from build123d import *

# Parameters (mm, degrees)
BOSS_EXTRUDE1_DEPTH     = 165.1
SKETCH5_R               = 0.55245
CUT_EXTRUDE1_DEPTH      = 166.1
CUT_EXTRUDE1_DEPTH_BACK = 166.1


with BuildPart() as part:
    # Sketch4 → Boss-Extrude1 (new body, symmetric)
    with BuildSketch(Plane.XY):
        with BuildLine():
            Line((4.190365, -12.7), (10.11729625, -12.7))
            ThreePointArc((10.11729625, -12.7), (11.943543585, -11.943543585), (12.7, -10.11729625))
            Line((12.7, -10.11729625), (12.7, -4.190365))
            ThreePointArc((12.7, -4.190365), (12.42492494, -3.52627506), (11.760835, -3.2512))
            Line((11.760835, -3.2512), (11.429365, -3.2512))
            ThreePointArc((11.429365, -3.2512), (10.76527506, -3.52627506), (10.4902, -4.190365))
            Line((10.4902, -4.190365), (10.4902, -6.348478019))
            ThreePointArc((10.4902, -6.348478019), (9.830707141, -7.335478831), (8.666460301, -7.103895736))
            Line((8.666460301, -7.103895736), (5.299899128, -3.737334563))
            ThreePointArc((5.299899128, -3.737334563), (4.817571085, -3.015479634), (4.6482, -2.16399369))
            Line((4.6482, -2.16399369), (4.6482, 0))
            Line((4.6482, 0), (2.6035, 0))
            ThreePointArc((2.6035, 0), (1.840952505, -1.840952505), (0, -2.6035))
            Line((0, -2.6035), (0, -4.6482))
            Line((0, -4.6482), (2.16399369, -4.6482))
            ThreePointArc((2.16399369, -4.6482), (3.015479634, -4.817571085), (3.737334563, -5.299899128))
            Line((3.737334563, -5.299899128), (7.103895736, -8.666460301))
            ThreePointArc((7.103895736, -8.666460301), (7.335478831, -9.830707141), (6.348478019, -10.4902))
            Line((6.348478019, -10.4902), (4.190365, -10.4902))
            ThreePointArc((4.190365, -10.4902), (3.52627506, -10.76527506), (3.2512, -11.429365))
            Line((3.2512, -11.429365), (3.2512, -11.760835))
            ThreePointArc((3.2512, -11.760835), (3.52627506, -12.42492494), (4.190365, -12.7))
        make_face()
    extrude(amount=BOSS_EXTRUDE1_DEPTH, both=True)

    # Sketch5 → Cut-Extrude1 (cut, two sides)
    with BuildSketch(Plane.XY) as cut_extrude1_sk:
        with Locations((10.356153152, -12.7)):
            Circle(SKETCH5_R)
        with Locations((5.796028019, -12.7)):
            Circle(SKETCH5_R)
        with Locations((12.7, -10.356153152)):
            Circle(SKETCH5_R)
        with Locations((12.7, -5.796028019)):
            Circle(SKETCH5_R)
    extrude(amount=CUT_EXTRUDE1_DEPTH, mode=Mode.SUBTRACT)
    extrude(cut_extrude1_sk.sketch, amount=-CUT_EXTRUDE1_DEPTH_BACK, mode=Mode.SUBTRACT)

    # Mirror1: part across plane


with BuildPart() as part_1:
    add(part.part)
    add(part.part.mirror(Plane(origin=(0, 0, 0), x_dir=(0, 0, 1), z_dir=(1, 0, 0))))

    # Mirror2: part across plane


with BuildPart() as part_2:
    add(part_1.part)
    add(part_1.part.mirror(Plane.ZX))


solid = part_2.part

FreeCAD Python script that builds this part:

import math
import FreeCAD as App
import Part
import Sketcher

V = App.Vector
Q = App.Units.Quantity

doc = App.newDocument("Part")
body = doc.addObject("PartDesign::Body", "Body")

# Sketch on XY plane
sketch1 = body.newObject("Sketcher::SketchObject", "Sketch")
sketch1.AttachmentSupport = (doc.getObject("XY_Plane"), [""])
sketch1.MapMode = "FlatFace"
sketch1.addGeometry([
    Part.LineSegment(V(4.19, -12.7, 0), V(10.12, -12.7, 0)),  # 0
    Part.ArcOfCircle(Part.Circle(V(10.12, -10.12, 0), V(0, 0, 1), 2.58), math.radians(-90), math.radians(0)),  # 1
    Part.LineSegment(V(12.7, -10.12, 0), V(12.7, -4.19, 0)),  # 2
    Part.ArcOfCircle(Part.Circle(V(11.76, -4.19, 0), V(0, 0, 1), 0.94), math.radians(0), math.radians(90)),  # 3
    Part.LineSegment(V(11.76, -3.25, 0), V(11.43, -3.25, 0)),  # 4
    Part.ArcOfCircle(Part.Circle(V(11.43, -4.19, 0), V(0, 0, 1), 0.94), math.radians(90), math.radians(180)),  # 5
    Part.LineSegment(V(10.49, -4.19, 0), V(10.49, -6.35, 0)),  # 6
    Part.ArcOfCircle(Part.Circle(V(9.42, -6.35, 0), V(0, 0, 1), 1.07), math.radians(-135), math.radians(0)),  # 7
    Part.LineSegment(V(8.67, -7.1, 0), V(5.3, -3.74, 0)),  # 8
    Part.ArcOfCircle(Part.Circle(V(6.87, -2.16, 0), V(0, 0, 1), 2.23), math.radians(-180), math.radians(-135)),  # 9
    Part.LineSegment(V(4.65, -2.16, 0), V(4.65, 0, 0)),  # 10
    Part.LineSegment(V(4.65, 0, 0), V(2.6, 0, 0)),  # 11
    Part.ArcOfCircle(Part.Circle(V(0, 0, 0), V(0, 0, 1), 2.6), math.radians(-90), math.radians(0)),  # 12
    Part.LineSegment(V(0, -2.6, 0), V(0, -4.65, 0)),  # 13
    Part.LineSegment(V(0, -4.65, 0), V(2.16, -4.65, 0)),  # 14
    Part.ArcOfCircle(Part.Circle(V(2.16, -6.87, 0), V(0, 0, 1), 2.23), math.radians(45), math.radians(90)),  # 15
    Part.LineSegment(V(3.74, -5.3, 0), V(7.1, -8.67, 0)),  # 16
    Part.ArcOfCircle(Part.Circle(V(6.35, -9.42, 0), V(0, 0, 1), 1.07), math.radians(-90), math.radians(45)),  # 17
    Part.LineSegment(V(6.35, -10.49, 0), V(4.19, -10.49, 0)),  # 18
    Part.ArcOfCircle(Part.Circle(V(4.19, -11.43, 0), V(0, 0, 1), 0.94), math.radians(90), math.radians(180)),  # 19
    Part.LineSegment(V(3.25, -11.43, 0), V(3.25, -11.76, 0)),  # 20
    Part.ArcOfCircle(Part.Circle(V(4.19, -11.76, 0), V(0, 0, 1), 0.94), math.radians(-180), math.radians(-90)),  # 21
], False)
sketch1.addConstraint([
    Sketcher.Constraint("Tangent", 0, 2, 1, 1),
    Sketcher.Constraint("Tangent", 1, 2, 2, 1),
    Sketcher.Constraint("Tangent", 2, 2, 3, 1),
    Sketcher.Constraint("Tangent", 3, 2, 4, 1),
    Sketcher.Constraint("Tangent", 4, 2, 5, 1),
    Sketcher.Constraint("Tangent", 5, 2, 6, 1),
    Sketcher.Constraint("Tangent", 6, 2, 7, 2),
    Sketcher.Constraint("Tangent", 7, 1, 8, 1),
    Sketcher.Constraint("Tangent", 8, 2, 9, 2),
    Sketcher.Constraint("Tangent", 9, 1, 10, 1),
    Sketcher.Constraint("Coincident", 10, 2, 11, 1),
    Sketcher.Constraint("Coincident", 11, 2, 12, 2),
    Sketcher.Constraint("Coincident", 12, 1, 13, 1),
    Sketcher.Constraint("Coincident", 13, 2, 14, 1),
    Sketcher.Constraint("Tangent", 14, 2, 15, 2),
    Sketcher.Constraint("Tangent", 15, 1, 16, 1),
    Sketcher.Constraint("Tangent", 16, 2, 17, 2),
    Sketcher.Constraint("Tangent", 17, 1, 18, 1),
    Sketcher.Constraint("Tangent", 18, 2, 19, 1),
    Sketcher.Constraint("Tangent", 19, 2, 20, 1),
    Sketcher.Constraint("Tangent", 20, 2, 21, 1),
    Sketcher.Constraint("Tangent", 21, 2, 0, 1),
    Sketcher.Constraint("Horizontal", 0),
    Sketcher.Constraint("Vertical", 2),
    Sketcher.Constraint("Horizontal", 4),
    Sketcher.Constraint("Vertical", 6),
    Sketcher.Constraint("Vertical", 10),
    Sketcher.Constraint("Horizontal", 11),
    Sketcher.Constraint("Vertical", 13),
    Sketcher.Constraint("Horizontal", 14),
    Sketcher.Constraint("Horizontal", 18),
    Sketcher.Constraint("Vertical", 20),
    Sketcher.Constraint("Coincident", 12, 3, -1, 1),
    Sketcher.Constraint("Equal", 3, 5),
    Sketcher.Constraint("Equal", 9, 15),
    Sketcher.Constraint("Equal", 7, 17),
    Sketcher.Constraint("Equal", 5, 19),
    Sketcher.Constraint("Equal", 19, 21),
    Sketcher.Constraint("PointOnObject", 10, 2, -1),
    Sketcher.Constraint("PointOnObject", 12, 1, -2),
    Sketcher.Constraint("Parallel", 8, 16),
    Sketcher.Constraint("Equal", 0, 2),
    Sketcher.Constraint("Equal", 18, 6),
    Sketcher.Constraint("Equal", 14, 10),
    Sketcher.Constraint("Equal", 11, 13),
    Sketcher.Constraint("Equal", 4, 20),
    Sketcher.Constraint("Equal", 8, 16),
    Sketcher.Constraint("DistanceY", 0, 2, -1, 1, Q("0.5 in")),
    Sketcher.Constraint("Radius", 9, Q("0.0876 in")),
    Sketcher.Constraint("Radius", 12, Q("0.1025 in")),
    Sketcher.Constraint("DistanceX", 9, 1, 5, 2, Q("0.23 in")),
    Sketcher.Constraint("DistanceX", 11, 2, 11, 1, Q("0.0805 in")),
    Sketcher.Constraint("DistanceY", 3, 2, -1, 1, Q("0.128 in")),
    Sketcher.Constraint("Radius", 7, Q("1.068322 mm")),
    Sketcher.Constraint("DistanceX", 17, 3, 7, 3, Q("0.121 in")),
    Sketcher.Constraint("Radius", 1, Q("2.582704 mm")),
    Sketcher.Constraint("Radius", 3, Q("0.939165 mm")),
])
pad1 = body.newObject("PartDesign::Pad", "Pad")
pad1.Profile = sketch1
pad1.Length = Q("13 in")
pad1.Midplane = True

# Sketch on XY plane
sketch2 = body.newObject("Sketcher::SketchObject", "Sketch001")
sketch2.AttachmentSupport = (doc.getObject("XY_Plane"), [""])
sketch2.MapMode = "FlatFace"
sketch2.addGeometry([
    Part.Circle(V(10.4, -12.7, 0), V(0, 0, 1), 0.6),
    Part.Circle(V(5.8, -12.7, 0), V(0, 0, 1), 0.6),
    Part.Circle(V(12.7, -10.4, 0), V(0, 0, 1), 0.6),
    Part.Circle(V(12.7, -5.8, 0), V(0, 0, 1), 0.6),
], False)
sketch2.addConstraint([
    Sketcher.Constraint("Equal", 0, 1),
    Sketcher.Constraint("Equal", 1, 2),
    Sketcher.Constraint("Equal", 2, 3),
    Sketcher.Constraint("Horizontal", 0, 3, 1, 3),
    Sketcher.Constraint("Vertical", 2, 3, 3, 3),
    Sketcher.Constraint("Diameter", 0, Q("0.0435 in")),
    Sketcher.Constraint("DistanceY", 0, 3, -1, 1, Q("0.5 in")),
    Sketcher.Constraint("DistanceX", -1, 1, 2, 3, Q("0.5 in")),
    Sketcher.Constraint("DistanceX", -1, 1, 1, 3, Q("5.796028 mm")),
    Sketcher.Constraint("DistanceY", 3, 3, -1, 1, Q("5.796028 mm")),
    Sketcher.Constraint("DistanceX", -1, 1, 0, 3, Q("10.356153 mm")),
    Sketcher.Constraint("DistanceY", 2, 3, -1, 1, Q("10.356153 mm")),
])
pocket1 = body.newObject("PartDesign::Pocket", "Pocket")
pocket1.Profile = sketch2
pocket1.Type = "ThroughAll"
pocket1.Midplane = True
body2 = doc.addObject("PartDesign::Body", "Body001")
doc.recompute()

body2.BaseFeature = body
doc.recompute()

mirroring = doc.addObject("Part::Mirroring", "Mirroring")
mirroring.Source = body
mirroring.Base = V(0, 0, 0)
mirroring.Normal = V(1, 0, 0)
body3 = doc.addObject("PartDesign::Body", "Body002")
body3.BaseFeature = mirroring
boolean = body2.newObject("PartDesign::Boolean", "Boolean")
boolean.Type = "Fuse"
boolean.addObjects([body3])
doc.recompute()
body4 = doc.addObject("PartDesign::Body", "Body003")
doc.recompute()

body4.BaseFeature = body2
doc.recompute()

mirroring2 = doc.addObject("Part::Mirroring", "Mirroring001")
mirroring2.Source = body2
mirroring2.Base = V(0, 0, 0)
mirroring2.Normal = V(0, 1, 0)
body5 = doc.addObject("PartDesign::Body", "Body004")
body5.BaseFeature = mirroring2
boolean2 = body4.newObject("PartDesign::Boolean", "Boolean001")
boolean2.Type = "Fuse"
boolean2.addObjects([body5])
doc.recompute()
mirroring.Visibility = False
mirroring2.Visibility = False

doc.recompute()
